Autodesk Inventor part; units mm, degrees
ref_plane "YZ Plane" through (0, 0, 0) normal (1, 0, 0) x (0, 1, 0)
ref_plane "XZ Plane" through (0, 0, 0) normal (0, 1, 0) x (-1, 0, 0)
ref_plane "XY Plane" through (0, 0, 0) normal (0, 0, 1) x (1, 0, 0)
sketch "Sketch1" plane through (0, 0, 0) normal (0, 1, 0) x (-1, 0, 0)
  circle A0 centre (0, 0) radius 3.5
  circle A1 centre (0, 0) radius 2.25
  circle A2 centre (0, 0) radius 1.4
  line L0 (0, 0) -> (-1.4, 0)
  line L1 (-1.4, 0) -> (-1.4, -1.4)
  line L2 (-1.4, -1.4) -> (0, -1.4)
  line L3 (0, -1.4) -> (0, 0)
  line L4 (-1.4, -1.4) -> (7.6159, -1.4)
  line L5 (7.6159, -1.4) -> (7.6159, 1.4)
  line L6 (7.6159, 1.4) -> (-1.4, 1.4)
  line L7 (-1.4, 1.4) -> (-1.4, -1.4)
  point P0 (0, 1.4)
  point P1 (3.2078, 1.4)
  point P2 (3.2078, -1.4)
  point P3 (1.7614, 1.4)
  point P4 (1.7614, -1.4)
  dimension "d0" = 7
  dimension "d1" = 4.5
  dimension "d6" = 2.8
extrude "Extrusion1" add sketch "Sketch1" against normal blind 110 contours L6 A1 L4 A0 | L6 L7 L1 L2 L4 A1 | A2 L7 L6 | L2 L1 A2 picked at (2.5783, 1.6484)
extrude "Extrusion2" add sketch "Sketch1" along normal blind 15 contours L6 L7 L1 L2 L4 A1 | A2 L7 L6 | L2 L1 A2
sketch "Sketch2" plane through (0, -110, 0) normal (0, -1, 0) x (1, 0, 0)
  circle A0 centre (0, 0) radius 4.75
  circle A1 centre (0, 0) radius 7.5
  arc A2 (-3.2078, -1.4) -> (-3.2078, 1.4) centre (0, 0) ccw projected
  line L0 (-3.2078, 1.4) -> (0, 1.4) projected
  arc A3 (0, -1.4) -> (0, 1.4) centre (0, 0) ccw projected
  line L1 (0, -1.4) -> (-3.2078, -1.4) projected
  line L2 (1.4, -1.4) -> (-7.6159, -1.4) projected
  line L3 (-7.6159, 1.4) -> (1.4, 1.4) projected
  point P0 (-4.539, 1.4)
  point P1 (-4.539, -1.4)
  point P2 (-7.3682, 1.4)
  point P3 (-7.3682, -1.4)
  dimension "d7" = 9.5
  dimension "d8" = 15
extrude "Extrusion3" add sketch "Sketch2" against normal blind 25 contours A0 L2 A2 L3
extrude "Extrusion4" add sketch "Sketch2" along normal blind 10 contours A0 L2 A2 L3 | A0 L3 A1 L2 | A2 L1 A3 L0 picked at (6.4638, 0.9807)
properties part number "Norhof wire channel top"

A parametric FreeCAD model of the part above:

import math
import FreeCAD as App
import Part
import Sketcher

V = App.Vector

doc = App.newDocument("Part")
body = doc.addObject("PartDesign::Body", "Body")

# Sketch on XZ plane
sketch1 = body.newObject("Sketcher::SketchObject", "Sketch")
sketch1.AttachmentSupport = (doc.getObject("XZ_Plane"), [""])
sketch1.MapMode = "FlatFace"
sketch1.addGeometry([
    Part.ArcOfCircle(Part.Circle(V(0, 0, 0), V(0, 0, 1), 3.5), math.radians(-156.421822), math.radians(156.421822)),
    Part.LineSegment(V(-3.207803, -1.4, 0), V(0, -1.4, 0)),
    Part.ArcOfCircle(Part.Circle(V(0, 0, 0), V(0, 0, 1), 1.4), math.radians(-90), math.radians(90)),
    Part.LineSegment(V(0, 1.4, 0), V(-3.207803, 1.4, 0)),
], False)
sketch1.addConstraint([
    Sketcher.Constraint("Coincident", 0, 1, 1, 1),
    Sketcher.Constraint("Tangent", 1, 2, 2, 1),
    Sketcher.Constraint("Tangent", 2, 2, 3, 1),
    Sketcher.Constraint("Coincident", 3, 2, 0, 2),
    Sketcher.Constraint("Horizontal", 1),
    Sketcher.Constraint("Horizontal", 3),
    Sketcher.Constraint("Coincident", 0, 3, -1, 1),
    Sketcher.Constraint("Coincident", 2, 3, -1, 1),
    Sketcher.Constraint("Radius", 0, 3.5),
    Sketcher.Constraint("Radius", 2, 1.4),
])
pad1 = body.newObject("PartDesign::Pad", "Pad")
pad1.Profile = sketch1
pad1.Length = 110

# Sketch on XZ plane
sketch2 = body.newObject("Sketcher::SketchObject", "Sketch001")
sketch2.AttachmentSupport = (doc.getObject("XZ_Plane"), [""])
sketch2.MapMode = "FlatFace"
sketch2.addGeometry([
    Part.LineSegment(V(0, 1.4, 0), V(-1.761391, 1.4, 0)),
    Part.ArcOfCircle(Part.Circle(V(0, 0, 0), V(0, 0, 1), 2.25), math.radians(-141.521405), math.radians(141.521405)),
    Part.LineSegment(V(-1.761391, -1.4, 0), V(0, -1.4, 0)),
    Part.ArcOfCircle(Part.Circle(V(0, 0, 0), V(0, 0, 1), 1.4), math.radians(-90), math.radians(90)),
], False)
sketch2.addConstraint([
    Sketcher.Constraint("Coincident", 0, 2, 1, 2),
    Sketcher.Constraint("Coincident", 1, 1, 2, 1),
    Sketcher.Constraint("Tangent", 2, 2, 3, 1),
    Sketcher.Constraint("Tangent", 3, 2, 0, 1),
    Sketcher.Constraint("Horizontal", 0),
    Sketcher.Constraint("Horizontal", 2),
    Sketcher.Constraint("Coincident", 1, 3, -1, 1),
    Sketcher.Constraint("Coincident", 3, 3, -1, 1),
    Sketcher.Constraint("Radius", 3, 1.4),
    Sketcher.Constraint("Radius", 1, 2.25),
])
pad2 = body.newObject("PartDesign::Pad", "Pad001")
pad2.Profile = sketch2
pad2.Length = 15
pad2.Reversed = True

# Sketch on XZ plane
sketch3 = body.newObject("Sketcher::SketchObject", "Sketch002")
sketch3.AttachmentSupport = (doc.getObject("XZ_Plane"), [""])
sketch3.MapMode = "FlatFace"
sketch3.AttachmentOffset = App.Placement(V(0, 0, 110), App.Rotation())
sketch3.addGeometry([
    Part.ArcOfCircle(Part.Circle(V(0, 0, 0), V(0, 0, 1), 4.75), math.radians(-162.858242), math.radians(162.858242)),
    Part.LineSegment(V(-4.538998, 1.4, 0), V(-3.2078, 1.4, 0)),
    Part.ArcOfCircle(Part.Circle(V(0, 0, 0), V(0, 0, 1), 3.499997), math.radians(-156.421802), math.radians(156.421802)),
    Part.LineSegment(V(-3.2078, -1.4, 0), V(-4.538998, -1.4, 0)),
], False)
sketch3.addConstraint([
    Sketcher.Constraint("Coincident", 0, 2, 1, 1),
    Sketcher.Constraint("Coincident", 1, 2, 2, 2),
    Sketcher.Constraint("Coincident", 2, 1, 3, 1),
    Sketcher.Constraint("Coincident", 3, 2, 0, 1),
    Sketcher.Constraint("Horizontal", 1),
    Sketcher.Constraint("Horizontal", 3),
    Sketcher.Constraint("Coincident", 0, 3, -1, 1),
    Sketcher.Constraint("Coincident", 2, 3, -1, 1),
    Sketcher.Constraint("Vertical", 1, 2, 2, 1),
    Sketcher.Constraint("Radius", 0, 4.75),
    Sketcher.Constraint("Radius", 2, 3.5),
    Sketcher.Constraint("DistanceY", -1, 1, 0, 2, 1.4),
])
pad3 = body.newObject("PartDesign::Pad", "Pad002")
pad3.Profile = sketch3
pad3.Length = 25
pad3.Reversed = True

# Sketch on XZ plane
sketch4 = body.newObject("Sketcher::SketchObject", "Sketch003")
sketch4.AttachmentSupport = (doc.getObject("XZ_Plane"), [""])
sketch4.MapMode = "FlatFace"
sketch4.AttachmentOffset = App.Placement(V(0, 0, 110), App.Rotation())
sketch4.addGeometry([
    Part.ArcOfCircle(Part.Circle(V(0, 0, 0), V(0, 0, 1), 7.5), math.radians(-169.241682), math.radians(169.241682)),
    Part.LineSegment(V(-7.368175, 1.4, 0), V(0, 1.4, 0)),
    Part.ArcOfCircle(Part.Circle(V(0, 0, 0), V(0, 0, 1), 1.4), math.radians(-90), math.radians(90)),
    Part.LineSegment(V(0, -1.4, 0), V(-7.368175, -1.4, 0)),
], False)
sketch4.addConstraint([
    Sketcher.Constraint("Coincident", 0, 2, 1, 1),
    Sketcher.Constraint("Tangent", 1, 2, 2, 2),
    Sketcher.Constraint("Tangent", 2, 1, 3, 1),
    Sketcher.Constraint("Coincident", 3, 2, 0, 1),
    Sketcher.Constraint("Horizontal", 1),
    Sketcher.Constraint("Horizontal", 3),
    Sketcher.Constraint("Coincident", 0, 3, -1, 1),
    Sketcher.Constraint("Coincident", 2, 3, -1, 1),
    Sketcher.Constraint("Radius", 0, 7.5),
    Sketcher.Constraint("Radius", 2, 1.4),
])
pad4 = body.newObject("PartDesign::Pad", "Pad003")
pad4.Profile = sketch4
pad4.Length = 10

doc.recompute()
